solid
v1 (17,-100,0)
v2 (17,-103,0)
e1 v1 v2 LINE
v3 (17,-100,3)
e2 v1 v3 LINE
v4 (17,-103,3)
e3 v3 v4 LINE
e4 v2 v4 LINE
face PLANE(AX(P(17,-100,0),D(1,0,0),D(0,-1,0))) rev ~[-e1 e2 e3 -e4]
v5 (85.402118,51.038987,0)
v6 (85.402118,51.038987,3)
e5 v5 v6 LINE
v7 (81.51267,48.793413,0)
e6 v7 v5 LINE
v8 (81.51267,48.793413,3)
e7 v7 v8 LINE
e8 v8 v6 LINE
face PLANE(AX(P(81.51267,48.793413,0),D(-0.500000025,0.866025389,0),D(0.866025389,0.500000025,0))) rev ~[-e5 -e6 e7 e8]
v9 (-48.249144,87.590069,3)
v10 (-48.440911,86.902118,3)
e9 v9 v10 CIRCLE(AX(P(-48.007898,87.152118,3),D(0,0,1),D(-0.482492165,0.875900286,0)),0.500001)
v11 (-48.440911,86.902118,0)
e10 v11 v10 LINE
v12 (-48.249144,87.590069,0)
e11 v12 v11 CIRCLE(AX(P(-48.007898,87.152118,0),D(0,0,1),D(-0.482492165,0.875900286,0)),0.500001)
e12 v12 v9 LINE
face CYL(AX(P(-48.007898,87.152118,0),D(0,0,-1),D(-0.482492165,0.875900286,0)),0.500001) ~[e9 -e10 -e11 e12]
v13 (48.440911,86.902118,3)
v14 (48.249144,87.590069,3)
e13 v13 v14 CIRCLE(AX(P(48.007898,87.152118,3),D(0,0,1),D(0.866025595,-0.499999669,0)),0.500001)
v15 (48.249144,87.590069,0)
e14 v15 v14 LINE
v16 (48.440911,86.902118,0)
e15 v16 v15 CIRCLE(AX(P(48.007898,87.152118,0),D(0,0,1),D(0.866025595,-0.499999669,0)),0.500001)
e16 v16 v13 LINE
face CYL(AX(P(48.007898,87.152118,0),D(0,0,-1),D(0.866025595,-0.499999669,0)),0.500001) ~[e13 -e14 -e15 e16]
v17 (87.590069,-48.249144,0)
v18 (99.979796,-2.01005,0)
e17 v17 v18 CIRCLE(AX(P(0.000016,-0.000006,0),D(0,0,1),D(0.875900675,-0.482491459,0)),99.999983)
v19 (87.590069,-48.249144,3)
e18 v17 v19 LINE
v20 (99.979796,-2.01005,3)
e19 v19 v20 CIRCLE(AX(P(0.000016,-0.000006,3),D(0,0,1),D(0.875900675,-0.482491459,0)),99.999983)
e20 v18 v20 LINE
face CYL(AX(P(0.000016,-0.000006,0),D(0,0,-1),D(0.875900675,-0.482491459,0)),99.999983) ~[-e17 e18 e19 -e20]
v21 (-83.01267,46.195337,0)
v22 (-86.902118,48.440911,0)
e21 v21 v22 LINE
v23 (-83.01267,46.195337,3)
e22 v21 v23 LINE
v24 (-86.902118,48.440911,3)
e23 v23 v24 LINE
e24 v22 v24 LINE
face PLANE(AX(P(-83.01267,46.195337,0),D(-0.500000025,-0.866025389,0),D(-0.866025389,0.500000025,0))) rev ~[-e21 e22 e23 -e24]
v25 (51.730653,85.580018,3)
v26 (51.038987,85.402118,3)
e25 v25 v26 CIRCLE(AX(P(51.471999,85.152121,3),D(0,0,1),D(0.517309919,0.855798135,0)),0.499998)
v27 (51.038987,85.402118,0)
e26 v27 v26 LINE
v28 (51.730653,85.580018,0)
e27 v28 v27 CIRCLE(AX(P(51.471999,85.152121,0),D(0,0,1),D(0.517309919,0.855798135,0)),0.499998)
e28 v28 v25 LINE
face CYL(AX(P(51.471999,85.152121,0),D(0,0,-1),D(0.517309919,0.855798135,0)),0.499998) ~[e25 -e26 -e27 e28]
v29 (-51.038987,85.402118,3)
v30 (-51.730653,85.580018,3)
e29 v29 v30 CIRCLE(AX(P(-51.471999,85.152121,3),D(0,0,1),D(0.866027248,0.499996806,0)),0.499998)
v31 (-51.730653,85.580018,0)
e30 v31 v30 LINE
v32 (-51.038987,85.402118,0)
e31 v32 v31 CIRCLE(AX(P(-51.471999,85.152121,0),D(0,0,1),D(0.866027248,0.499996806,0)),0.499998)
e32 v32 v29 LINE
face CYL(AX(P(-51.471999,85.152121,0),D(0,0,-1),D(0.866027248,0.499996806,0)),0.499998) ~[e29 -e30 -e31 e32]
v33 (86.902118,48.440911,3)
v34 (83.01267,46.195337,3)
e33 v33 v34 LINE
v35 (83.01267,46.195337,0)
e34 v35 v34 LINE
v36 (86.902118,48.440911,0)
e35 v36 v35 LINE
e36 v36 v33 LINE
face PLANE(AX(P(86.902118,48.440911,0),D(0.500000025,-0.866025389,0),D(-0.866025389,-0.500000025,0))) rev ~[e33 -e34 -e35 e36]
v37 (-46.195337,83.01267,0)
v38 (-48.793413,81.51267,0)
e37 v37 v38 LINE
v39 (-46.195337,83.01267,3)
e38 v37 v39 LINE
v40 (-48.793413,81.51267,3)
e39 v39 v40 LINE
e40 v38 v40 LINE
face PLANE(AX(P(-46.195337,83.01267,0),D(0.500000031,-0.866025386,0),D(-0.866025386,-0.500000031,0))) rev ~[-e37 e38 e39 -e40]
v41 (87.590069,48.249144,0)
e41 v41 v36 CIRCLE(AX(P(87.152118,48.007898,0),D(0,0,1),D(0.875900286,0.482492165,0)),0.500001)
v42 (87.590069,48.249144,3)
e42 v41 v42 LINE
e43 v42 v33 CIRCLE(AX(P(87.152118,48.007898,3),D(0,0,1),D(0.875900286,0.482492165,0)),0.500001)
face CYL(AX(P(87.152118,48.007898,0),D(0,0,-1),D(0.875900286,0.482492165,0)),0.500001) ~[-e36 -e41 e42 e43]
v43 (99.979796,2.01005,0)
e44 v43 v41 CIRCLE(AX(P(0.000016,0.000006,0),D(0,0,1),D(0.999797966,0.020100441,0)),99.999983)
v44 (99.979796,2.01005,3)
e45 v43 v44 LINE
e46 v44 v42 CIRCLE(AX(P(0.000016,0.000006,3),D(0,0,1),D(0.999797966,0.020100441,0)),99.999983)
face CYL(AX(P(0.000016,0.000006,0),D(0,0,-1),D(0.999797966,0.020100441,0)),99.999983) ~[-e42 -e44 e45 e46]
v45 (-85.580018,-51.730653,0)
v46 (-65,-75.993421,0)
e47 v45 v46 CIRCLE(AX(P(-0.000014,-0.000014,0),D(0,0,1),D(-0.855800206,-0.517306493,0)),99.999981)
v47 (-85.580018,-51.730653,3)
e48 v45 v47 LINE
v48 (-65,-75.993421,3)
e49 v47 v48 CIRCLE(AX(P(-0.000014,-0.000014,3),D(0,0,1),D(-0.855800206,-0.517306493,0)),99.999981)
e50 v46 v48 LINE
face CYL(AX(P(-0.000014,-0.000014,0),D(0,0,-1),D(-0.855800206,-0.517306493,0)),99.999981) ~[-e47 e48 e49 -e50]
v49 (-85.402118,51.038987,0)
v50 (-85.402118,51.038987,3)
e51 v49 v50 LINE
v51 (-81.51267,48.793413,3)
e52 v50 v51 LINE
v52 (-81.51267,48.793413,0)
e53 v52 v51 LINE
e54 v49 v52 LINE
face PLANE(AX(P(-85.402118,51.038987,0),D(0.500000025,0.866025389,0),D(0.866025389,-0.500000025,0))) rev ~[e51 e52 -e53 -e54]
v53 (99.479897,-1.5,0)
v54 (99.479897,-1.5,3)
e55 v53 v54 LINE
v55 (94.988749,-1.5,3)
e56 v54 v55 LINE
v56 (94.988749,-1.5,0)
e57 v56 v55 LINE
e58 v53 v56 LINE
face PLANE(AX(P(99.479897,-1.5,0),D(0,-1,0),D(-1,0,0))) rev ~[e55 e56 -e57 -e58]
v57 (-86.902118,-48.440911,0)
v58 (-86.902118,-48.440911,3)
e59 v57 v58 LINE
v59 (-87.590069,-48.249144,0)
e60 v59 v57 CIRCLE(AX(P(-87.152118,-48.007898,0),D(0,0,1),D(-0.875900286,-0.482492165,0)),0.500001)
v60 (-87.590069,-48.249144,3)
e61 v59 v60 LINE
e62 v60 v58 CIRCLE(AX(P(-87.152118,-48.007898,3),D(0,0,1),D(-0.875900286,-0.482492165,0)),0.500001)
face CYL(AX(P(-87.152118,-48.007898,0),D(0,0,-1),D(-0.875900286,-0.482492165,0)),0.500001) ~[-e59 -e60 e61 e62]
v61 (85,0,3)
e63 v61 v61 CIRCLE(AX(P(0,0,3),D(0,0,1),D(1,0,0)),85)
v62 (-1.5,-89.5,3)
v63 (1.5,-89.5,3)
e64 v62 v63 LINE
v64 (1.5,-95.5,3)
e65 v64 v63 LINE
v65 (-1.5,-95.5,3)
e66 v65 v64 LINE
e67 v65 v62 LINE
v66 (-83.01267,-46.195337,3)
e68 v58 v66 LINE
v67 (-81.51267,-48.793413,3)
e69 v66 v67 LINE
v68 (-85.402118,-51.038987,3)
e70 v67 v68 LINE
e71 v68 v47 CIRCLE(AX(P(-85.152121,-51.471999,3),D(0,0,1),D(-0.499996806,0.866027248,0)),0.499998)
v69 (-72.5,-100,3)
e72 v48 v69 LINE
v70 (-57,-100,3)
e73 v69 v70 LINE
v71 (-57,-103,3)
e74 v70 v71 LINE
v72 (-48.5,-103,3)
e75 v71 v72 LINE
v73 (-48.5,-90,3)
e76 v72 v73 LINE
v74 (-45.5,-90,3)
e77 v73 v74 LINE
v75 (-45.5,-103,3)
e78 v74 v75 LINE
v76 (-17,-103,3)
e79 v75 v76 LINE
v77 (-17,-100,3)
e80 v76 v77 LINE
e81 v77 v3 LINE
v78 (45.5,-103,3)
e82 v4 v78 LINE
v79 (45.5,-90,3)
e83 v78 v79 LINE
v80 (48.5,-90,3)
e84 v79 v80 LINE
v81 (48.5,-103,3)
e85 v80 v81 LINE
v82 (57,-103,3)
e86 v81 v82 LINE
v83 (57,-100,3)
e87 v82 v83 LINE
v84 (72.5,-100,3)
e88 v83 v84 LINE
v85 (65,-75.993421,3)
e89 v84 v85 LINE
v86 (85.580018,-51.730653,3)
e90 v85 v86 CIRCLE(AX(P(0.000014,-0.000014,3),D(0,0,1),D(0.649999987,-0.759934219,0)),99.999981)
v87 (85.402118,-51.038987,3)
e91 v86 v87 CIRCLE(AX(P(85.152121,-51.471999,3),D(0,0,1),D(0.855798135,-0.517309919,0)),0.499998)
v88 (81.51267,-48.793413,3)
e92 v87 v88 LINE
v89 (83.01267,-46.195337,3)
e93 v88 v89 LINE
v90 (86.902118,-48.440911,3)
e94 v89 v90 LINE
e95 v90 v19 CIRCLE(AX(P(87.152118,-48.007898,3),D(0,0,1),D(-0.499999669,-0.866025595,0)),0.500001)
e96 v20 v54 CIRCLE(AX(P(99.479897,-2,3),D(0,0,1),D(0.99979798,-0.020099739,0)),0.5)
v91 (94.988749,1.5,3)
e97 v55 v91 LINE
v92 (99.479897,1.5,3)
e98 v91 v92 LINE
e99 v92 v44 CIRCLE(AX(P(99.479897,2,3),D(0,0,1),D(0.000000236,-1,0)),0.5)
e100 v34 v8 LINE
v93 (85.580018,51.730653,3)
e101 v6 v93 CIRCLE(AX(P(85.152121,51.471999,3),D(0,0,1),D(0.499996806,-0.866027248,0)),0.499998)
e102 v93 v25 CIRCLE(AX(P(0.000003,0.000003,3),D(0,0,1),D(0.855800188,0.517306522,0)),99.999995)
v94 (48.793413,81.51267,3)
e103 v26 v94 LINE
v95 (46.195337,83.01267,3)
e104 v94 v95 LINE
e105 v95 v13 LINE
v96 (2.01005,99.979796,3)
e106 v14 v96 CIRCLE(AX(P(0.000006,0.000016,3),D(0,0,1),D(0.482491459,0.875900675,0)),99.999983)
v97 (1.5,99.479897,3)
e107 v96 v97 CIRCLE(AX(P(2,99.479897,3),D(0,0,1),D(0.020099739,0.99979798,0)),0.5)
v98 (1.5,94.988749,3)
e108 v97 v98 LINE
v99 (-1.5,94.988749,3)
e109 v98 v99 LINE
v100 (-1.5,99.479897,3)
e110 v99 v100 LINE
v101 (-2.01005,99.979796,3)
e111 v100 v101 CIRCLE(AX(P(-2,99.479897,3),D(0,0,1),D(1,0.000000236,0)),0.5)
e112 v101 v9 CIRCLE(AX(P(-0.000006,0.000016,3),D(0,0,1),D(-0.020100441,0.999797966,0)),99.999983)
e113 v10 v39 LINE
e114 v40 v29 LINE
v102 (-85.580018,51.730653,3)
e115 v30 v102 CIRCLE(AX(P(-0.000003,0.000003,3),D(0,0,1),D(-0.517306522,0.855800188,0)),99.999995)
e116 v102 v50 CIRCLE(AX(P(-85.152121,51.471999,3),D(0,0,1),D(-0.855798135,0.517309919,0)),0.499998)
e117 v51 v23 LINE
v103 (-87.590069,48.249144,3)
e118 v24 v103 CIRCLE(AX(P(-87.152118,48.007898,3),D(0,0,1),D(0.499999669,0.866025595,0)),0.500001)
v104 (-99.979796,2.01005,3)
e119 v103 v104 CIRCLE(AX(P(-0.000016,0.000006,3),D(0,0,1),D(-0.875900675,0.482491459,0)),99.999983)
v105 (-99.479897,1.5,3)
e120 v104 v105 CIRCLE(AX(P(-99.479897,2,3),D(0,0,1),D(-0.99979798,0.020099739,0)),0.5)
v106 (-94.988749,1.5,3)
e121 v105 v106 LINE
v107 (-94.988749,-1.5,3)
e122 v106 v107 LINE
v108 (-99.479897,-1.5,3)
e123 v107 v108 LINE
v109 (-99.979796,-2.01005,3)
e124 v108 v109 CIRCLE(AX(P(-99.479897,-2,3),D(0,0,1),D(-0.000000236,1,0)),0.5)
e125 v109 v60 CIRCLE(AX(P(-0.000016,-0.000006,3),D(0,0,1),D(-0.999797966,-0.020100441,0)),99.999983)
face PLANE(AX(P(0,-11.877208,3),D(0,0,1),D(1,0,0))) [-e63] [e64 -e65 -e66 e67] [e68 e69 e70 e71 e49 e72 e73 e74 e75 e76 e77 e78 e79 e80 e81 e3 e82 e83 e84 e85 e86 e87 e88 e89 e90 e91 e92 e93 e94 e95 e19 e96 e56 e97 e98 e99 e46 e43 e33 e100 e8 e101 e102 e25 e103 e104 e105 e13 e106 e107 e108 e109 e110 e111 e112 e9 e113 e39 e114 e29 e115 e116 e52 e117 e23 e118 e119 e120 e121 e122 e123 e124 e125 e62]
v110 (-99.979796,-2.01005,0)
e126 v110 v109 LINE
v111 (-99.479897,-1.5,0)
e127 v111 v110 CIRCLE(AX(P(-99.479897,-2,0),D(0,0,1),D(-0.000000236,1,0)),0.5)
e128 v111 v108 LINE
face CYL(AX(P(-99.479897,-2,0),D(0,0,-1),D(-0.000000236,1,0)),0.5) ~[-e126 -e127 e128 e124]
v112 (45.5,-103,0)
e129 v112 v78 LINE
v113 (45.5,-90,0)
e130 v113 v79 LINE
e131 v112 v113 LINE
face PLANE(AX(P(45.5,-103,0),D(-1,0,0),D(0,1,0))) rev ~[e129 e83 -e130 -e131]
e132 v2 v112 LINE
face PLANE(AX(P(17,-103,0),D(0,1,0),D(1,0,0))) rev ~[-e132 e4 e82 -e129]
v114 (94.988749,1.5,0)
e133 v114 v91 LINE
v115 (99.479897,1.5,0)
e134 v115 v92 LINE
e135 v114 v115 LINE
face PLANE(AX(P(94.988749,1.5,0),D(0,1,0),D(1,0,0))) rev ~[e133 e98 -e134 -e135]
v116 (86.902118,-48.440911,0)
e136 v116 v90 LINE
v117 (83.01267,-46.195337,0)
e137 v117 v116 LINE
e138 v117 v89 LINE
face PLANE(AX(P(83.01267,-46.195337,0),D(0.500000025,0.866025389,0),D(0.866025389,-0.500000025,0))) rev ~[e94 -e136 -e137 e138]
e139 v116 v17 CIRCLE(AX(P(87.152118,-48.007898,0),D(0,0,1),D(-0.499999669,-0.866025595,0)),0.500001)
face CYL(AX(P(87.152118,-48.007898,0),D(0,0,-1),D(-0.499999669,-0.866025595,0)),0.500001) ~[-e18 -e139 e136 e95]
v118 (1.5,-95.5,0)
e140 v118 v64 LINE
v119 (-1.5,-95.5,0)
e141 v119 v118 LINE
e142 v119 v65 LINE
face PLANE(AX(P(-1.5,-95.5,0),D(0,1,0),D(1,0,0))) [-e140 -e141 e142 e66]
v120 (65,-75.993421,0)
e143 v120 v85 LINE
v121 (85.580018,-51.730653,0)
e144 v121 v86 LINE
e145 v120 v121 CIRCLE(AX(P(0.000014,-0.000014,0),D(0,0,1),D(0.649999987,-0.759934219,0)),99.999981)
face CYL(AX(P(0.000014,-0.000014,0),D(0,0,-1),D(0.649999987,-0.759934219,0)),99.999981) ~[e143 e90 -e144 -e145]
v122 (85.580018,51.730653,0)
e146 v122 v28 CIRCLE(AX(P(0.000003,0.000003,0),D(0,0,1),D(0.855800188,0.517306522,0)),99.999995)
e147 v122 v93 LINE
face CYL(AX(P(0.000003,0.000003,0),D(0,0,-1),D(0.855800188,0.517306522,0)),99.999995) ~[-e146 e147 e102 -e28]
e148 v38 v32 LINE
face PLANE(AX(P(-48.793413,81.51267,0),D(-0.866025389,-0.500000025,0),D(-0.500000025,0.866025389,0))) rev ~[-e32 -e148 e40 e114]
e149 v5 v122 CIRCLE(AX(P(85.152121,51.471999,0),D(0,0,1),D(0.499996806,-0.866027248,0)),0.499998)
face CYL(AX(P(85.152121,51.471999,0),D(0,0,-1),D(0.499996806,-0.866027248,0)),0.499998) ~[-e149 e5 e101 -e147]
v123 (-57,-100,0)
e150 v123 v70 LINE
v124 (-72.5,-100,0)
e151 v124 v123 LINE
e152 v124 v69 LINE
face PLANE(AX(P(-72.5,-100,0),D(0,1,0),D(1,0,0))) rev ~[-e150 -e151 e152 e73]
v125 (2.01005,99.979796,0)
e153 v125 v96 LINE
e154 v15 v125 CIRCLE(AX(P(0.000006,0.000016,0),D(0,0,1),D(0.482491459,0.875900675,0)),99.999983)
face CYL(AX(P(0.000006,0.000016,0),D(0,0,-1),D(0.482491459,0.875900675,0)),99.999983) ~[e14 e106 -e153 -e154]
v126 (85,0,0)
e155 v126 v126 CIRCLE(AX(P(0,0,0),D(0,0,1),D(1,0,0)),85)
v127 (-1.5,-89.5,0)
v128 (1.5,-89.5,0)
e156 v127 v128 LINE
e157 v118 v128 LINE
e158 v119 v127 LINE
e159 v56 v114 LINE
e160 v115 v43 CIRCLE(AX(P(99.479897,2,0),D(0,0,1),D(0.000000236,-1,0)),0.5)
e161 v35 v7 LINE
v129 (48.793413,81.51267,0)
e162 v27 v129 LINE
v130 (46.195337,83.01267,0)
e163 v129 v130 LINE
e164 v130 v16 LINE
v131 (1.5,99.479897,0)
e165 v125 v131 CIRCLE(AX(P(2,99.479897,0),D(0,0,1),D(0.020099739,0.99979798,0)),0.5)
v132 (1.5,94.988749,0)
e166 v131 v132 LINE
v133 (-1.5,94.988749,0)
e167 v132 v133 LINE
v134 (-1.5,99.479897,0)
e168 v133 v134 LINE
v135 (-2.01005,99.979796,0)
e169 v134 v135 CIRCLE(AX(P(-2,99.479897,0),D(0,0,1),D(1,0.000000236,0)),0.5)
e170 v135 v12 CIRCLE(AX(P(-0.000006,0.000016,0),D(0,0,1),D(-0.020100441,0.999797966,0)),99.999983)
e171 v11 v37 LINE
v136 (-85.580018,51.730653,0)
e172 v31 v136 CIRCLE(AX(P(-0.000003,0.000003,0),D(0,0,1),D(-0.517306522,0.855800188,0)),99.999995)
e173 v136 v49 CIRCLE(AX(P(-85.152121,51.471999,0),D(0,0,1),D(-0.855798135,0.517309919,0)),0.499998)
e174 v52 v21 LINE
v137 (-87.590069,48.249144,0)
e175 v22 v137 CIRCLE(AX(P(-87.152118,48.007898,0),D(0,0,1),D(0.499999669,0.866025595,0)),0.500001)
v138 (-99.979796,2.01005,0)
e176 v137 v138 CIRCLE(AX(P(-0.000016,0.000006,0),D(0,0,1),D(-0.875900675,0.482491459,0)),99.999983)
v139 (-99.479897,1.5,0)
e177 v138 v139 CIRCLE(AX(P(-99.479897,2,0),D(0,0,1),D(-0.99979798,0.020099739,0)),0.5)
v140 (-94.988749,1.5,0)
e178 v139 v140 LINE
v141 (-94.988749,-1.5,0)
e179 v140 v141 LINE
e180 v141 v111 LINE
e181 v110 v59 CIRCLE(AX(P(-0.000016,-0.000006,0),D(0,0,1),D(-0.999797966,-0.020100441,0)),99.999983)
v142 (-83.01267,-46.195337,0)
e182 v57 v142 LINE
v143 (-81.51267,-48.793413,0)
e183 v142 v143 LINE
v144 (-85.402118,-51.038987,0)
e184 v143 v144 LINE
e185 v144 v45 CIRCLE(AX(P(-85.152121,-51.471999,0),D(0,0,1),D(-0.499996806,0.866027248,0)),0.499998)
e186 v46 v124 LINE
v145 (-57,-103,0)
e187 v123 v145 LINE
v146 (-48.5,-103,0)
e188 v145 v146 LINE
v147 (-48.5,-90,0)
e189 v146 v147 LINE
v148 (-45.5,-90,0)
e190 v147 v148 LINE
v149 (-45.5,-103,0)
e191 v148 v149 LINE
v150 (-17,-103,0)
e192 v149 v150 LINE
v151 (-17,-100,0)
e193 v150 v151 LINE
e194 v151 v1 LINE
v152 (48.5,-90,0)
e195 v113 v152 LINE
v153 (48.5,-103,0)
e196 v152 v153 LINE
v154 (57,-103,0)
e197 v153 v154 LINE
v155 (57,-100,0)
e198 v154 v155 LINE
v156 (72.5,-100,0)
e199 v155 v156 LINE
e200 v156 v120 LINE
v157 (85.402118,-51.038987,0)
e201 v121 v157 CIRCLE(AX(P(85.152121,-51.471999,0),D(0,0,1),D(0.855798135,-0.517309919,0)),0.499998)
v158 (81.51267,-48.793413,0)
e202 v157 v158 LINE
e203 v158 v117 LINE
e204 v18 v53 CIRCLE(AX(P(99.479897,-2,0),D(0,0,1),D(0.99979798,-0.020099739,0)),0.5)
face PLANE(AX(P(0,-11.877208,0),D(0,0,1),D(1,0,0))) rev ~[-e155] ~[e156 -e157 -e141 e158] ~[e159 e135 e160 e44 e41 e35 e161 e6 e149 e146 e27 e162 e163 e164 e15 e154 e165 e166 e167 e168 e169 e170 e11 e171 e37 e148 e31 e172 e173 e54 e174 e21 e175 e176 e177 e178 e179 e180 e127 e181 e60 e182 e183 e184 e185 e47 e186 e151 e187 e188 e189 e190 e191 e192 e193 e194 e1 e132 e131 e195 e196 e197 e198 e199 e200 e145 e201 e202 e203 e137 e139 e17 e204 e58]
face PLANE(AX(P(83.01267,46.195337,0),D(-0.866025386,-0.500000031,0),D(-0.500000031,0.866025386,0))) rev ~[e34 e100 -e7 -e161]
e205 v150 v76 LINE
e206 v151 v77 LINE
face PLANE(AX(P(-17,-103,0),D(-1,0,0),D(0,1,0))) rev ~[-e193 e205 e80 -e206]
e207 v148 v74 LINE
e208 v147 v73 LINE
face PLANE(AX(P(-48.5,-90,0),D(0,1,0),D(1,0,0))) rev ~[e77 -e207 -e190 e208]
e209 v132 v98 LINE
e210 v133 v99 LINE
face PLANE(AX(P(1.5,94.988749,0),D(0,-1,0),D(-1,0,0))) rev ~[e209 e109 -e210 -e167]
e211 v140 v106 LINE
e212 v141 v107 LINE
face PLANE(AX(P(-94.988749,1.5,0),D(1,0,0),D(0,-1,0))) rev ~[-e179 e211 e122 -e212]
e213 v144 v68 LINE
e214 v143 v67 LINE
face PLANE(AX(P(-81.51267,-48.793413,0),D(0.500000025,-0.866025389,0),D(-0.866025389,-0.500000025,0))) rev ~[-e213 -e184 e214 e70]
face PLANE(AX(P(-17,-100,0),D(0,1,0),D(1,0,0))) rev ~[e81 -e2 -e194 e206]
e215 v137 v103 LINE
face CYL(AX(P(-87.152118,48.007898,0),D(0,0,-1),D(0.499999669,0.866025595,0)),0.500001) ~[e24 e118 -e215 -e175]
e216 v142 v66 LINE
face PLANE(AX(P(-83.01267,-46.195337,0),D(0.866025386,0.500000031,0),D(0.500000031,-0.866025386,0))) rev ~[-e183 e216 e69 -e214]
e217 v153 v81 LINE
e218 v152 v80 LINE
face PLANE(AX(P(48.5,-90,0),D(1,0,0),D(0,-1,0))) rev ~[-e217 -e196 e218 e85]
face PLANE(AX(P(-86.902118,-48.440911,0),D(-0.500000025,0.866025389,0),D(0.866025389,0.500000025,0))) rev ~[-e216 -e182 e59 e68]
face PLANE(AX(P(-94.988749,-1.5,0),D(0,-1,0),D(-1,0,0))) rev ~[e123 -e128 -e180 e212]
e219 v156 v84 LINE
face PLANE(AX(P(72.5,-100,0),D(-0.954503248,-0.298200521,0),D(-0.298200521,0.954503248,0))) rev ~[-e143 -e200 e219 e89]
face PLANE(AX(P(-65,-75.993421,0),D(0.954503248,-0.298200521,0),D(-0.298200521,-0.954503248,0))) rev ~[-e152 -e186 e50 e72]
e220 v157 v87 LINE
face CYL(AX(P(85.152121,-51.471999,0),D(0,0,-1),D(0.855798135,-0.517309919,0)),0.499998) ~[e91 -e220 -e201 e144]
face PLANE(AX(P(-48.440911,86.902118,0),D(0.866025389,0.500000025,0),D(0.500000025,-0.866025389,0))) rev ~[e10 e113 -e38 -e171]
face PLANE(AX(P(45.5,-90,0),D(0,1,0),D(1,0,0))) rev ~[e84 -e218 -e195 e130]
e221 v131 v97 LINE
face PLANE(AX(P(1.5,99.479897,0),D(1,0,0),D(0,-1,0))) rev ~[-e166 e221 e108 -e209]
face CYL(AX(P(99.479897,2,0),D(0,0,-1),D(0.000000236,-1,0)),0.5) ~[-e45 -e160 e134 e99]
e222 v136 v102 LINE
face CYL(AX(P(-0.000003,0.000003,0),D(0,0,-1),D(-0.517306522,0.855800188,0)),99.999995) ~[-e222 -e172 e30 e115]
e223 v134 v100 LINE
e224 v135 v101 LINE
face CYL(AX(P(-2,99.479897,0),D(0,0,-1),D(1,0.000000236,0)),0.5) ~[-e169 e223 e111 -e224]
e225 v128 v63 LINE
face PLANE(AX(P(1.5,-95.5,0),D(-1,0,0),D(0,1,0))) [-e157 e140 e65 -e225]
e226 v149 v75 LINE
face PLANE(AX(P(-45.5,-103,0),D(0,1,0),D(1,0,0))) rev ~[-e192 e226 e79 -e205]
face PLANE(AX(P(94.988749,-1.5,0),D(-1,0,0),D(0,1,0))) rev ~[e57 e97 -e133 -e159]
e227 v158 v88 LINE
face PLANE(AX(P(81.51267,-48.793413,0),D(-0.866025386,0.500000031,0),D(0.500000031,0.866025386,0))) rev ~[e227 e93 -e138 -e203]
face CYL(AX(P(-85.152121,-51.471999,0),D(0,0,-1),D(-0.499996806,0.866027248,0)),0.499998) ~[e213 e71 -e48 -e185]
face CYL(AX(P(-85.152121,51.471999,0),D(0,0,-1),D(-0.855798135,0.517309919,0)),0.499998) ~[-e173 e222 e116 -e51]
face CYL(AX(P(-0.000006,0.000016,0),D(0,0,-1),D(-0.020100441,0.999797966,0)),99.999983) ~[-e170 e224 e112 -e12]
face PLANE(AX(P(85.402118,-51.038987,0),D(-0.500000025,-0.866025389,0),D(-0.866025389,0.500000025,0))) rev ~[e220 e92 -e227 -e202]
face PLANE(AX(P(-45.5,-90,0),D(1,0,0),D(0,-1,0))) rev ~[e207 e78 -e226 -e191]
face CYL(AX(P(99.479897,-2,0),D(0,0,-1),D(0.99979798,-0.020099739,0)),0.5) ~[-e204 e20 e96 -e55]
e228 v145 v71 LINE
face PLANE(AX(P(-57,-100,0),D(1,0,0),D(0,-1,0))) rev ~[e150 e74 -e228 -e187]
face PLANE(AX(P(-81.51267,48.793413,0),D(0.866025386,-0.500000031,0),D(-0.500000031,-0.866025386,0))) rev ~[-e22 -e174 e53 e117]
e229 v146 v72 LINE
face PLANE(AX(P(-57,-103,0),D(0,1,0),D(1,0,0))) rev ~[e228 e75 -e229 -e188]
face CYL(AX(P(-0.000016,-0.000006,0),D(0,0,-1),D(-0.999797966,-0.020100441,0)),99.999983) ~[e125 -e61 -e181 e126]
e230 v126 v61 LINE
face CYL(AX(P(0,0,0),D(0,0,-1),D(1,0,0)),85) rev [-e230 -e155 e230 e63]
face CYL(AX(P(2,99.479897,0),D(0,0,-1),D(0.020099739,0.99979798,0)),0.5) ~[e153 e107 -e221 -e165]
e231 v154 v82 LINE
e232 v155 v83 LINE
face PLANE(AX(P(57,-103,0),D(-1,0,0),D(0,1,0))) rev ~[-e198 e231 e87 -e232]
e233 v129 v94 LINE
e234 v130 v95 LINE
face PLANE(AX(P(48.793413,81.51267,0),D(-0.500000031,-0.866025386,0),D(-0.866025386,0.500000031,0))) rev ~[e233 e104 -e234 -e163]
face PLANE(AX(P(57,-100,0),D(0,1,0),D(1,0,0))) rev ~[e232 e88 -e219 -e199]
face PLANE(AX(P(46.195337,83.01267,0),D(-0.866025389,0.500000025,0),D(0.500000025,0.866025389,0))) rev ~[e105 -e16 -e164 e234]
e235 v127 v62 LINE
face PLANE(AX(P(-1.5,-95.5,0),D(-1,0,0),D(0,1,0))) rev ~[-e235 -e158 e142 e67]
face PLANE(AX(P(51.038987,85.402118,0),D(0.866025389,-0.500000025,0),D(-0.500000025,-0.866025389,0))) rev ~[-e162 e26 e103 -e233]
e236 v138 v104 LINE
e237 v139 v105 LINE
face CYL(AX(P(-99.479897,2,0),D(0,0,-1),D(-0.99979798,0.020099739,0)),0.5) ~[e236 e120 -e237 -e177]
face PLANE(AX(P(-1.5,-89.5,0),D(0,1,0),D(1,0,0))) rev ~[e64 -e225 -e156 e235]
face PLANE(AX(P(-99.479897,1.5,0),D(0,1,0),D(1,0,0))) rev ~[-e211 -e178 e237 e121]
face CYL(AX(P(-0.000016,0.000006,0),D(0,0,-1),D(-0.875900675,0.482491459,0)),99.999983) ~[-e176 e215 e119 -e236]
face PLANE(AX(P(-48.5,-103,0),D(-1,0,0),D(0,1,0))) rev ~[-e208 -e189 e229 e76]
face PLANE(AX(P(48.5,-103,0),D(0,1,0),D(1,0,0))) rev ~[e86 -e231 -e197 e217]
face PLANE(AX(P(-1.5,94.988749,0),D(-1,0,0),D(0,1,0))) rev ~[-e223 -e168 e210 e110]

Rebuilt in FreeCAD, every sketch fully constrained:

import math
import FreeCAD as App
import Part
import Sketcher

doc = App.newDocument("Part")
body = doc.addObject("PartDesign::Body", "Body")

sketch1 = doc.addObject("Sketcher::SketchObject", "Sketch")
body.addObject(sketch1)
sketch1.AttachmentSupport = (doc.XY_Plane, [""])
sketch1.MapMode = "FlatFace"
sketch1.addGeometry([
    Part.ArcOfCircle(Part.Circle(App.Vector(-2, 99.479897, 0), App.Vector(0, 0, 1), 0.5), math.radians(0.000014), math.radians(91.151708)),
    Part.ArcOfCircle(Part.Circle(App.Vector(-0.000006, 0.000016, 0), App.Vector(0, 0, 1), 99.999983), math.radians(91.151748), math.radians(118.84825)),
    Part.ArcOfCircle(Part.Circle(App.Vector(-48.007898, 87.152118, 0), App.Vector(0, 0, 1), 0.500001), math.radians(118.848296), math.radians(209.999978)),
    Part.LineSegment(App.Vector(-48.440911, 86.902118, 0), App.Vector(-46.195337, 83.01267, 0)),
    Part.LineSegment(App.Vector(-46.195337, 83.01267, 0), App.Vector(-48.793413, 81.51267, 0)),
    Part.LineSegment(App.Vector(-48.793413, 81.51267, 0), App.Vector(-51.038987, 85.402118, 0)),
    Part.ArcOfCircle(Part.Circle(App.Vector(-51.471999, 85.152121, 0), App.Vector(0, 0, 1), 0.499998), math.radians(29.999789), math.radians(121.151979)),
    Part.ArcOfCircle(Part.Circle(App.Vector(-0.000003, 0.000003, 0), App.Vector(0, 0, 1), 99.999995), math.radians(121.151751), math.radians(148.848249)),
    Part.ArcOfCircle(Part.Circle(App.Vector(-85.152121, 51.471999, 0), App.Vector(0, 0, 1), 0.499998), math.radians(148.848021), math.radians(240.000211)),
    Part.LineSegment(App.Vector(-85.402118, 51.038987, 0), App.Vector(-81.51267, 48.793413, 0)),
    Part.LineSegment(App.Vector(-81.51267, 48.793413, 0), App.Vector(-83.01267, 46.195337, 0)),
    Part.LineSegment(App.Vector(-83.01267, 46.195337, 0), App.Vector(-86.902118, 48.440911, 0)),
    Part.ArcOfCircle(Part.Circle(App.Vector(-87.152118, 48.007898, 0), App.Vector(0, 0, 1), 0.500001), math.radians(60.000022), math.radians(151.151704)),
    Part.ArcOfCircle(Part.Circle(App.Vector(-0.000016, 0.000006, 0), App.Vector(0, 0, 1), 99.999983), math.radians(151.15175), math.radians(178.848252)),
    Part.ArcOfCircle(Part.Circle(App.Vector(-99.479897, 2, 0), App.Vector(0, 0, 1), 0.5), math.radians(178.848292), math.radians(269.999986)),
    Part.LineSegment(App.Vector(-99.479897, 1.5, 0), App.Vector(-94.988749, 1.5, 0)),
    Part.LineSegment(App.Vector(-94.988749, 1.5, 0), App.Vector(-94.988749, -1.5, 0)),
    Part.LineSegment(App.Vector(-94.988749, -1.5, 0), App.Vector(-99.479897, -1.5, 0)),
    Part.ArcOfCircle(Part.Circle(App.Vector(-99.479897, -2, 0), App.Vector(0, 0, 1), 0.5), math.radians(90.000014), math.radians(181.151708)),
    Part.ArcOfCircle(Part.Circle(App.Vector(-0.000016, -0.000006, 0), App.Vector(0, 0, 1), 99.999983), math.radians(-178.848252), math.radians(-151.15175)),
    Part.ArcOfCircle(Part.Circle(App.Vector(-87.152118, -48.007898, 0), App.Vector(0, 0, 1), 0.500001), math.radians(-151.151704), math.radians(-60.000022)),
    Part.LineSegment(App.Vector(-86.902118, -48.440911, 0), App.Vector(-83.01267, -46.195337, 0)),
    Part.LineSegment(App.Vector(-83.01267, -46.195337, 0), App.Vector(-81.51267, -48.793413, 0)),
    Part.LineSegment(App.Vector(-81.51267, -48.793413, 0), App.Vector(-85.402118, -51.038987, 0)),
    Part.ArcOfCircle(Part.Circle(App.Vector(-85.152121, -51.471999, 0), App.Vector(0, 0, 1), 0.499998), math.radians(119.999789), math.radians(211.151979)),
    Part.ArcOfCircle(Part.Circle(App.Vector(-0.000014, -0.000014, 0), App.Vector(0, 0, 1), 99.999981), math.radians(-148.848251), math.radians(-130.541601)),
    Part.LineSegment(App.Vector(-65, -75.993421, 0), App.Vector(-72.5, -100, 0)),
    Part.LineSegment(App.Vector(-72.5, -100, 0), App.Vector(-57, -100, 0)),
    Part.LineSegment(App.Vector(-57, -100, 0), App.Vector(-57, -103, 0)),
    Part.LineSegment(App.Vector(-57, -103, 0), App.Vector(-48.5, -103, 0)),
    Part.LineSegment(App.Vector(-48.5, -103, 0), App.Vector(-48.5, -90, 0)),
    Part.LineSegment(App.Vector(-48.5, -90, 0), App.Vector(-45.5, -90, 0)),
    Part.LineSegment(App.Vector(-45.5, -90, 0), App.Vector(-45.5, -103, 0)),
    Part.LineSegment(App.Vector(-45.5, -103, 0), App.Vector(-17, -103, 0)),
    Part.LineSegment(App.Vector(-17, -103, 0), App.Vector(-17, -100, 0)),
    Part.LineSegment(App.Vector(-17, -100, 0), App.Vector(17, -100, 0)),
    Part.LineSegment(App.Vector(17, -100, 0), App.Vector(17, -103, 0)),
    Part.LineSegment(App.Vector(17, -103, 0), App.Vector(45.5, -103, 0)),
    Part.LineSegment(App.Vector(45.5, -103, 0), App.Vector(45.5, -90, 0)),
    Part.LineSegment(App.Vector(45.5, -90, 0), App.Vector(48.5, -90, 0)),
    Part.LineSegment(App.Vector(48.5, -90, 0), App.Vector(48.5, -103, 0)),
    Part.LineSegment(App.Vector(48.5, -103, 0), App.Vector(57, -103, 0)),
    Part.LineSegment(App.Vector(57, -103, 0), App.Vector(57, -100, 0)),
    Part.LineSegment(App.Vector(57, -100, 0), App.Vector(72.5, -100, 0)),
    Part.LineSegment(App.Vector(72.5, -100, 0), App.Vector(65, -75.993421, 0)),
    Part.ArcOfCircle(Part.Circle(App.Vector(0.000014, -0.000014, 0), App.Vector(0, 0, 1), 99.999981), math.radians(-49.458399), math.radians(-31.151749)),
    Part.ArcOfCircle(Part.Circle(App.Vector(85.152121, -51.471999, 0), App.Vector(0, 0, 1), 0.499998), math.radians(-31.151979), math.radians(60.000211)),
    Part.LineSegment(App.Vector(85.402118, -51.038987, 0), App.Vector(81.51267, -48.793413, 0)),
    Part.LineSegment(App.Vector(81.51267, -48.793413, 0), App.Vector(83.01267, -46.195337, 0)),
    Part.LineSegment(App.Vector(83.01267, -46.195337, 0), App.Vector(86.902118, -48.440911, 0)),
    Part.ArcOfCircle(Part.Circle(App.Vector(87.152118, -48.007898, 0), App.Vector(0, 0, 1), 0.500001), math.radians(-119.999978), math.radians(-28.848296)),
    Part.ArcOfCircle(Part.Circle(App.Vector(0.000016, -0.000006, 0), App.Vector(0, 0, 1), 99.999983), math.radians(-28.84825), math.radians(-1.151748)),
    Part.ArcOfCircle(Part.Circle(App.Vector(99.479897, -2, 0), App.Vector(0, 0, 1), 0.5), math.radians(-1.151708), math.radians(89.999986)),
    Part.LineSegment(App.Vector(99.479897, -1.5, 0), App.Vector(94.988749, -1.5, 0)),
    Part.LineSegment(App.Vector(94.988749, -1.5, 0), App.Vector(94.988749, 1.5, 0)),
    Part.LineSegment(App.Vector(94.988749, 1.5, 0), App.Vector(99.479897, 1.5, 0)),
    Part.ArcOfCircle(Part.Circle(App.Vector(99.479897, 2, 0), App.Vector(0, 0, 1), 0.5), math.radians(-89.999986), math.radians(1.151708)),
    Part.ArcOfCircle(Part.Circle(App.Vector(0.000016, 0.000006, 0), App.Vector(0, 0, 1), 99.999983), math.radians(1.151748), math.radians(28.84825)),
    Part.ArcOfCircle(Part.Circle(App.Vector(87.152118, 48.007898, 0), App.Vector(0, 0, 1), 0.500001), math.radians(28.848296), math.radians(119.999978)),
    Part.LineSegment(App.Vector(86.902118, 48.440911, 0), App.Vector(83.01267, 46.195337, 0)),
    Part.LineSegment(App.Vector(83.01267, 46.195337, 0), App.Vector(81.51267, 48.793413, 0)),
    Part.LineSegment(App.Vector(81.51267, 48.793413, 0), App.Vector(85.402118, 51.038987, 0)),
    Part.ArcOfCircle(Part.Circle(App.Vector(85.152121, 51.471999, 0), App.Vector(0, 0, 1), 0.499998), math.radians(-60.000211), math.radians(31.151979)),
    Part.ArcOfCircle(Part.Circle(App.Vector(0.000003, 0.000003, 0), App.Vector(0, 0, 1), 99.999995), math.radians(31.151751), math.radians(58.848249)),
    Part.ArcOfCircle(Part.Circle(App.Vector(51.471999, 85.152121, 0), App.Vector(0, 0, 1), 0.499998), math.radians(58.848021), math.radians(150.000211)),
    Part.LineSegment(App.Vector(51.038987, 85.402118, 0), App.Vector(48.793413, 81.51267, 0)),
    Part.LineSegment(App.Vector(48.793413, 81.51267, 0), App.Vector(46.195337, 83.01267, 0)),
    Part.LineSegment(App.Vector(46.195337, 83.01267, 0), App.Vector(48.440911, 86.902118, 0)),
    Part.ArcOfCircle(Part.Circle(App.Vector(48.007898, 87.152118, 0), App.Vector(0, 0, 1), 0.500001), math.radians(-29.999978), math.radians(61.151704)),
    Part.ArcOfCircle(Part.Circle(App.Vector(0.000006, 0.000016, 0), App.Vector(0, 0, 1), 99.999983), math.radians(61.15175), math.radians(88.848252)),
    Part.ArcOfCircle(Part.Circle(App.Vector(2, 99.479897, 0), App.Vector(0, 0, 1), 0.5), math.radians(88.848292), math.radians(179.999986)),
    Part.LineSegment(App.Vector(1.5, 99.479897, 0), App.Vector(1.5, 94.988749, 0)),
    Part.LineSegment(App.Vector(1.5, 94.988749, 0), App.Vector(-1.5, 94.988749, 0)),
    Part.LineSegment(App.Vector(-1.5, 94.988749, 0), App.Vector(-1.5, 99.479897, 0)),
    Part.LineSegment(App.Vector(1.5, -95.5, 0), App.Vector(-1.5, -95.5, 0)),
    Part.LineSegment(App.Vector(-1.5, -95.5, 0), App.Vector(-1.5, -89.5, 0)),
    Part.LineSegment(App.Vector(-1.5, -89.5, 0), App.Vector(1.5, -89.5, 0)),
    Part.LineSegment(App.Vector(1.5, -89.5, 0), App.Vector(1.5, -95.5, 0)),
    Part.Circle(App.Vector(0, 0, 0), App.Vector(0, 0, 1), 85),
], False)
sketch1.addConstraint([
    Sketcher.Constraint("Coincident", 0, 2, 1, 1),
    Sketcher.Constraint("Coincident", 1, 2, 2, 1),
    Sketcher.Constraint("Coincident", 2, 2, 3, 1),
    Sketcher.Constraint("Coincident", 3, 2, 4, 1),
    Sketcher.Constraint("Coincident", 4, 2, 5, 1),
    Sketcher.Constraint("Coincident", 5, 2, 6, 1),
    Sketcher.Constraint("Coincident", 6, 2, 7, 1),
    Sketcher.Constraint("Coincident", 7, 2, 8, 1),
    Sketcher.Constraint("Coincident", 8, 2, 9, 1),
    Sketcher.Constraint("Coincident", 9, 2, 10, 1),
    Sketcher.Constraint("Coincident", 10, 2, 11, 1),
    Sketcher.Constraint("Coincident", 11, 2, 12, 1),
    Sketcher.Constraint("Coincident", 12, 2, 13, 1),
    Sketcher.Constraint("Coincident", 13, 2, 14, 1),
    Sketcher.Constraint("Coincident", 14, 2, 15, 1),
    Sketcher.Constraint("Coincident", 15, 2, 16, 1),
    Sketcher.Constraint("Coincident", 16, 2, 17, 1),
    Sketcher.Constraint("Coincident", 17, 2, 18, 1),
    Sketcher.Constraint("Coincident", 18, 2, 19, 1),
    Sketcher.Constraint("Coincident", 19, 2, 20, 1),
    Sketcher.Constraint("Coincident", 20, 2, 21, 1),
    Sketcher.Constraint("Coincident", 21, 2, 22, 1),
    Sketcher.Constraint("Coincident", 22, 2, 23, 1),
    Sketcher.Constraint("Coincident", 23, 2, 24, 1),
    Sketcher.Constraint("Coincident", 24, 2, 25, 1),
    Sketcher.Constraint("Coincident", 25, 2, 26, 1),
    Sketcher.Constraint("Coincident", 26, 2, 27, 1),
    Sketcher.Constraint("Coincident", 27, 2, 28, 1),
    Sketcher.Constraint("Coincident", 28, 2, 29, 1),
    Sketcher.Constraint("Coincident", 29, 2, 30, 1),
    Sketcher.Constraint("Coincident", 30, 2, 31, 1),
    Sketcher.Constraint("Coincident", 31, 2, 32, 1),
    Sketcher.Constraint("Coincident", 32, 2, 33, 1),
    Sketcher.Constraint("Coincident", 33, 2, 34, 1),
    Sketcher.Constraint("Coincident", 34, 2, 35, 1),
    Sketcher.Constraint("Coincident", 35, 2, 36, 1),
    Sketcher.Constraint("Coincident", 36, 2, 37, 1),
    Sketcher.Constraint("Coincident", 37, 2, 38, 1),
    Sketcher.Constraint("Coincident", 38, 2, 39, 1),
    Sketcher.Constraint("Coincident", 39, 2, 40, 1),
    Sketcher.Constraint("Coincident", 40, 2, 41, 1),
    Sketcher.Constraint("Coincident", 41, 2, 42, 1),
    Sketcher.Constraint("Coincident", 42, 2, 43, 1),
    Sketcher.Constraint("Coincident", 43, 2, 44, 1),
    Sketcher.Constraint("Coincident", 44, 2, 45, 1),
    Sketcher.Constraint("Coincident", 45, 2, 46, 1),
    Sketcher.Constraint("Coincident", 46, 2, 47, 1),
    Sketcher.Constraint("Coincident", 47, 2, 48, 1),
    Sketcher.Constraint("Coincident", 48, 2, 49, 1),
    Sketcher.Constraint("Coincident", 49, 2, 50, 1),
    Sketcher.Constraint("Coincident", 50, 2, 51, 1),
    Sketcher.Constraint("Coincident", 51, 2, 52, 1),
    Sketcher.Constraint("Coincident", 52, 2, 53, 1),
    Sketcher.Constraint("Coincident", 53, 2, 54, 1),
    Sketcher.Constraint("Coincident", 54, 2, 55, 1),
    Sketcher.Constraint("Coincident", 55, 2, 56, 1),
    Sketcher.Constraint("Coincident", 56, 2, 57, 1),
    Sketcher.Constraint("Coincident", 57, 2, 58, 1),
    Sketcher.Constraint("Coincident", 58, 2, 59, 1),
    Sketcher.Constraint("Coincident", 59, 2, 60, 1),
    Sketcher.Constraint("Coincident", 60, 2, 61, 1),
    Sketcher.Constraint("Coincident", 61, 2, 62, 1),
    Sketcher.Constraint("Coincident", 62, 2, 63, 1),
    Sketcher.Constraint("Coincident", 63, 2, 64, 1),
    Sketcher.Constraint("Coincident", 64, 2, 65, 1),
    Sketcher.Constraint("Coincident", 65, 2, 66, 1),
    Sketcher.Constraint("Coincident", 66, 2, 67, 1),
    Sketcher.Constraint("Coincident", 67, 2, 68, 1),
    Sketcher.Constraint("Coincident", 68, 2, 69, 1),
    Sketcher.Constraint("Coincident", 69, 2, 70, 1),
    Sketcher.Constraint("Coincident", 70, 2, 71, 1),
    Sketcher.Constraint("Coincident", 71, 2, 72, 1),
    Sketcher.Constraint("Coincident", 72, 2, 73, 1),
    Sketcher.Constraint("Coincident", 73, 2, 0, 1),
    Sketcher.Constraint("Coincident", 74, 2, 75, 1),
    Sketcher.Constraint("Coincident", 75, 2, 76, 1),
    Sketcher.Constraint("Coincident", 76, 2, 77, 1),
    Sketcher.Constraint("Coincident", 77, 2, 74, 1),
    Sketcher.Constraint("Horizontal", 15),
    Sketcher.Constraint("Vertical", 16),
    Sketcher.Constraint("Horizontal", 17),
    Sketcher.Constraint("Horizontal", 27),
    Sketcher.Constraint("Vertical", 28),
    Sketcher.Constraint("Horizontal", 29),
    Sketcher.Constraint("Vertical", 30),
    Sketcher.Constraint("Horizontal", 31),
    Sketcher.Constraint("Vertical", 32),
    Sketcher.Constraint("Horizontal", 33),
    Sketcher.Constraint("Vertical", 34),
    Sketcher.Constraint("Horizontal", 35),
    Sketcher.Constraint("Vertical", 36),
    Sketcher.Constraint("Horizontal", 37),
    Sketcher.Constraint("Vertical", 38),
    Sketcher.Constraint("Horizontal", 39),
    Sketcher.Constraint("Vertical", 40),
    Sketcher.Constraint("Horizontal", 41),
    Sketcher.Constraint("Vertical", 42),
    Sketcher.Constraint("Horizontal", 43),
    Sketcher.Constraint("Horizontal", 53),
    Sketcher.Constraint("Vertical", 54),
    Sketcher.Constraint("Horizontal", 55),
    Sketcher.Constraint("Vertical", 71),
    Sketcher.Constraint("Horizontal", 72),
    Sketcher.Constraint("Vertical", 73),
    Sketcher.Constraint("Horizontal", 74),
    Sketcher.Constraint("Vertical", 75),
    Sketcher.Constraint("Horizontal", 76),
    Sketcher.Constraint("Vertical", 77),
    Sketcher.Constraint("Coincident", 7, 3, -1, 1),
    Sketcher.Constraint("Coincident", 63, 3, -1, 1),
    Sketcher.Constraint("Coincident", 78, 3, -1, 1),
    Sketcher.Constraint("Coincident", 25, 3, 19, 3),
    Sketcher.Constraint("Coincident", 51, 3, 45, 3),
    Sketcher.Constraint("Diameter", 78, 170.0),
    Sketcher.Constraint("Radius", 0, 0.5),
    Sketcher.Constraint("Radius", 2, 0.500001),
    Sketcher.Constraint("Radius", 6, 0.499998),
    Sketcher.Constraint("Radius", 8, 0.499998),
    Sketcher.Constraint("Radius", 12, 0.500001),
    Sketcher.Constraint("Radius", 14, 0.5),
    Sketcher.Constraint("Radius", 18, 0.5),
    Sketcher.Constraint("Radius", 20, 0.500001),
    Sketcher.Constraint("Radius", 24, 0.499998),
    Sketcher.Constraint("Radius", 46, 0.499998),
    Sketcher.Constraint("Radius", 50, 0.500001),
    Sketcher.Constraint("Radius", 52, 0.5),
    Sketcher.Constraint("Radius", 56, 0.5),
    Sketcher.Constraint("Radius", 58, 0.500001),
    Sketcher.Constraint("Radius", 62, 0.499998),
    Sketcher.Constraint("Radius", 64, 0.499998),
    Sketcher.Constraint("Radius", 68, 0.500001),
    Sketcher.Constraint("Radius", 70, 0.5),
    Sketcher.Constraint("DistanceX", 31, 1, 31, 2, 3.0),
    Sketcher.Constraint("DistanceX", 35, 1, 35, 2, 34.0),
    Sketcher.Constraint("DistanceX", 39, 1, 39, 2, 3.0),
    Sketcher.Constraint("DistanceX", 72, 2, 72, 1, 3.0),
    Sketcher.Constraint("DistanceX", 74, 2, 74, 1, 3.0),
    Sketcher.Constraint("DistanceY", 16, 2, 16, 1, 3.0),
    Sketcher.Constraint("DistanceY", 28, 2, 28, 1, 3.0),
    Sketcher.Constraint("DistanceY", 30, 1, 30, 2, 13.0),
    Sketcher.Constraint("DistanceY", 32, 2, 32, 1, 13.0),
    Sketcher.Constraint("DistanceY", 34, 1, 34, 2, 3.0),
    Sketcher.Constraint("DistanceY", 36, 2, 36, 1, 3.0),
    Sketcher.Constraint("DistanceY", 38, 1, 38, 2, 13.0),
    Sketcher.Constraint("DistanceY", 40, 2, 40, 1, 13.0),
    Sketcher.Constraint("DistanceY", 42, 1, 42, 2, 3.0),
    Sketcher.Constraint("DistanceY", 54, 1, 54, 2, 3.0),
    Sketcher.Constraint("DistanceY", 75, 1, 75, 2, 6.0),
    Sketcher.Constraint("Distance", 4, 3.0),
    Sketcher.Constraint("Distance", 10, 3.0),
    Sketcher.Constraint("Distance", 22, 3.0),
    Sketcher.Constraint("Distance", 48, 3.0),
    Sketcher.Constraint("Distance", 60, 3.0),
    Sketcher.Constraint("Distance", 66, 3.0),
    Sketcher.Constraint("DistanceX", 27, 1, 27, 2, 15.5),
    Sketcher.Constraint("DistanceX", 29, 1, 29, 2, 8.5),
    Sketcher.Constraint("DistanceX", 33, 1, 33, 2, 28.5),
    Sketcher.Constraint("DistanceX", 37, 1, 37, 2, 28.5),
    Sketcher.Constraint("DistanceX", 41, 1, 41, 2, 8.5),
    Sketcher.Constraint("DistanceX", 43, 1, 43, 2, 15.5),
    Sketcher.Constraint("DistanceX", 0, 3, -1, 1, 2.0),
    Sketcher.Constraint("DistanceY", -1, 1, 14, 3, 2.0),
    Sketcher.Constraint("DistanceY", 52, 3, -1, 1, 2.0),
    Sketcher.Constraint("DistanceX", 25, 2, -1, 1, 65.0),
    Sketcher.Constraint("DistanceY", 26, 2, -1, 1, 100.0),
    Sketcher.Constraint("DistanceX", 27, 2, -1, 1, 57.0),
    Sketcher.Constraint("DistanceX", -1, 1, 44, 2, 65.0),
    Sketcher.Constraint("DistanceX", 74, 2, -1, 1, 1.5),
    Sketcher.Constraint("DistanceY", 74, 2, -1, 1, 95.5),
    Sketcher.Constraint("Radius", 25, 99.999981),
    Sketcher.Constraint("Radius", 45, 99.999981),
    Sketcher.Constraint("DistanceX", 6, 3, -1, 1, 51.471999),
    Sketcher.Constraint("DistanceY", -1, 1, 8, 3, 51.471999),
    Sketcher.Constraint("DistanceY", 24, 3, -1, 1, 51.471999),
    Sketcher.Constraint("DistanceY", 46, 3, -1, 1, 51.471999),
    Sketcher.Constraint("DistanceY", -1, 1, 62, 3, 51.471999),
    Sketcher.Constraint("DistanceX", -1, 1, 64, 3, 51.471999),
    Sketcher.Constraint("Radius", 1, 99.999983),
    Sketcher.Constraint("Radius", 7, 99.999995),
    Sketcher.Constraint("Radius", 13, 99.999983),
    Sketcher.Constraint("Radius", 19, 99.999983),
    Sketcher.Constraint("Radius", 51, 99.999983),
    Sketcher.Constraint("Radius", 57, 99.999983),
    Sketcher.Constraint("Radius", 63, 99.999995),
    Sketcher.Constraint("Radius", 69, 99.999983),
    Sketcher.Constraint("Distance", 26, 25.150862),
    Sketcher.Constraint("Distance", 44, 25.150862),
    Sketcher.Constraint("DistanceX", 15, 1, 15, 2, 4.491148),
    Sketcher.Constraint("DistanceX", 17, 2, 17, 1, 4.491148),
    Sketcher.Constraint("DistanceX", 53, 2, 53, 1, 4.491148),
    Sketcher.Constraint("DistanceX", 55, 1, 55, 2, 4.491148),
    Sketcher.Constraint("DistanceY", 71, 2, 71, 1, 4.491148),
    Sketcher.Constraint("DistanceY", 73, 1, 73, 2, 4.491148),
    Sketcher.Constraint("DistanceY", -1, 1, 2, 3, 87.152118),
    Sketcher.Constraint("DistanceX", 12, 3, -1, 1, 87.152118),
    Sketcher.Constraint("DistanceX", 20, 3, -1, 1, 87.152118),
    Sketcher.Constraint("DistanceX", 24, 3, -1, 1, 85.152121),
    Sketcher.Constraint("DistanceX", -1, 1, 46, 3, 85.152121),
    Sketcher.Constraint("DistanceX", -1, 1, 50, 3, 87.152118),
    Sketcher.Constraint("DistanceX", -1, 1, 58, 3, 87.152118),
    Sketcher.Constraint("DistanceY", -1, 1, 68, 3, 87.152118),
    Sketcher.Constraint("DistanceX", 0, 2, -1, 1, 2.01005),
    Sketcher.Constraint("DistanceY", -1, 1, 1, 2, 87.590069),
    Sketcher.Constraint("DistanceX", 2, 2, -1, 1, 48.440911),
    Sketcher.Constraint("DistanceY", -1, 1, 2, 2, 86.902118),
    Sketcher.Constraint("DistanceY", -1, 1, 3, 2, 83.01267),
    Sketcher.Constraint("DistanceY", -1, 1, 4, 2, 81.51267),
    Sketcher.Constraint("DistanceY", -1, 1, 5, 2, 85.402118),
    Sketcher.Constraint("DistanceX", 9, 2, -1, 1, 81.51267),
    Sketcher.Constraint("DistanceX", 10, 2, -1, 1, 83.01267),
    Sketcher.Constraint("DistanceX", 11, 2, -1, 1, 86.902118),
    Sketcher.Constraint("DistanceY", -1, 1, 11, 2, 48.440911),
    Sketcher.Constraint("DistanceX", 12, 2, -1, 1, 87.590069),
    Sketcher.Constraint("DistanceY", -1, 1, 13, 2, 2.01005),
    Sketcher.Constraint("DistanceX", 15, 2, -1, 1, 94.988749),
    Sketcher.Constraint("DistanceY", 18, 2, -1, 1, 2.01005),
    Sketcher.Constraint("DistanceX", 19, 2, -1, 1, 87.590069),
    Sketcher.Constraint("DistanceX", 20, 2, -1, 1, 86.902118),
    Sketcher.Constraint("DistanceX", 21, 2, -1, 1, 83.01267),
    Sketcher.Constraint("DistanceX", 22, 2, -1, 1, 81.51267),
    Sketcher.Constraint("DistanceX", 23, 2, -1, 1, 85.402118),
    Sketcher.Constraint("DistanceX", -1, 1, 47, 2, 81.51267),
    Sketcher.Constraint("DistanceX", -1, 1, 48, 2, 83.01267),
    Sketcher.Constraint("DistanceX", -1, 1, 49, 2, 86.902118),
    Sketcher.Constraint("DistanceX", -1, 1, 50, 2, 87.590069),
    Sketcher.Constraint("DistanceY", 51, 2, -1, 1, 2.01005),
    Sketcher.Constraint("DistanceX", -1, 1, 53, 2, 94.988749),
    Sketcher.Constraint("DistanceY", -1, 1, 56, 2, 2.01005),
    Sketcher.Constraint("DistanceX", -1, 1, 57, 2, 87.590069),
    Sketcher.Constraint("DistanceX", -1, 1, 58, 2, 86.902118),
    Sketcher.Constraint("DistanceY", -1, 1, 58, 2, 48.440911),
    Sketcher.Constraint("DistanceX", -1, 1, 59, 2, 83.01267),
    Sketcher.Constraint("DistanceX", -1, 1, 60, 2, 81.51267),
    Sketcher.Constraint("DistanceX", -1, 1, 61, 2, 85.402118),
    Sketcher.Constraint("DistanceY", -1, 1, 65, 2, 81.51267),
    Sketcher.Constraint("DistanceY", -1, 1, 66, 2, 83.01267),
    Sketcher.Constraint("DistanceX", -1, 1, 67, 2, 48.440911),
    Sketcher.Constraint("DistanceY", -1, 1, 67, 2, 86.902118),
    Sketcher.Constraint("DistanceY", -1, 1, 68, 2, 87.590069),
    Sketcher.Constraint("DistanceX", -1, 1, 69, 2, 2.01005),
    Sketcher.Constraint("DistanceY", -1, 1, 71, 2, 94.988749),
    Sketcher.Constraint("Distance", 3, 4.491148),
    Sketcher.Constraint("Distance", 9, 4.491148),
    Sketcher.Constraint("Distance", 11, 4.491148),
    Sketcher.Constraint("Distance", 21, 4.491148),
    Sketcher.Constraint("Distance", 47, 4.491148),
    Sketcher.Constraint("Distance", 49, 4.491148),
    Sketcher.Constraint("Distance", 59, 4.491148),
    Sketcher.Constraint("Distance", 65, 4.491148),
    Sketcher.Constraint("Distance", 67, 4.491148),
    Sketcher.Constraint("DistanceY", -1, 1, 0, 3, 99.479897),
    Sketcher.Constraint("DistanceX", 14, 3, -1, 1, 99.479897),
    Sketcher.Constraint("DistanceX", -1, 1, 56, 3, 99.479897),
    Sketcher.Constraint("DistanceY", -1, 1, 70, 3, 99.479897),
    Sketcher.Constraint("DistanceX", 6, 2, -1, 1, 51.730653),
    Sketcher.Constraint("DistanceX", 7, 2, -1, 1, 85.580018),
    Sketcher.Constraint("DistanceX", 24, 2, -1, 1, 85.580018),
    Sketcher.Constraint("DistanceX", -1, 1, 45, 2, 85.580018),
    Sketcher.Constraint("DistanceX", -1, 1, 62, 2, 85.580018),
    Sketcher.Constraint("DistanceX", -1, 1, 63, 2, 51.730653),
])
pad1 = doc.addObject("PartDesign::Pad", "Pad")
body.addObject(pad1)
pad1.Profile = sketch1
pad1.Length = 3

doc.recompute()
